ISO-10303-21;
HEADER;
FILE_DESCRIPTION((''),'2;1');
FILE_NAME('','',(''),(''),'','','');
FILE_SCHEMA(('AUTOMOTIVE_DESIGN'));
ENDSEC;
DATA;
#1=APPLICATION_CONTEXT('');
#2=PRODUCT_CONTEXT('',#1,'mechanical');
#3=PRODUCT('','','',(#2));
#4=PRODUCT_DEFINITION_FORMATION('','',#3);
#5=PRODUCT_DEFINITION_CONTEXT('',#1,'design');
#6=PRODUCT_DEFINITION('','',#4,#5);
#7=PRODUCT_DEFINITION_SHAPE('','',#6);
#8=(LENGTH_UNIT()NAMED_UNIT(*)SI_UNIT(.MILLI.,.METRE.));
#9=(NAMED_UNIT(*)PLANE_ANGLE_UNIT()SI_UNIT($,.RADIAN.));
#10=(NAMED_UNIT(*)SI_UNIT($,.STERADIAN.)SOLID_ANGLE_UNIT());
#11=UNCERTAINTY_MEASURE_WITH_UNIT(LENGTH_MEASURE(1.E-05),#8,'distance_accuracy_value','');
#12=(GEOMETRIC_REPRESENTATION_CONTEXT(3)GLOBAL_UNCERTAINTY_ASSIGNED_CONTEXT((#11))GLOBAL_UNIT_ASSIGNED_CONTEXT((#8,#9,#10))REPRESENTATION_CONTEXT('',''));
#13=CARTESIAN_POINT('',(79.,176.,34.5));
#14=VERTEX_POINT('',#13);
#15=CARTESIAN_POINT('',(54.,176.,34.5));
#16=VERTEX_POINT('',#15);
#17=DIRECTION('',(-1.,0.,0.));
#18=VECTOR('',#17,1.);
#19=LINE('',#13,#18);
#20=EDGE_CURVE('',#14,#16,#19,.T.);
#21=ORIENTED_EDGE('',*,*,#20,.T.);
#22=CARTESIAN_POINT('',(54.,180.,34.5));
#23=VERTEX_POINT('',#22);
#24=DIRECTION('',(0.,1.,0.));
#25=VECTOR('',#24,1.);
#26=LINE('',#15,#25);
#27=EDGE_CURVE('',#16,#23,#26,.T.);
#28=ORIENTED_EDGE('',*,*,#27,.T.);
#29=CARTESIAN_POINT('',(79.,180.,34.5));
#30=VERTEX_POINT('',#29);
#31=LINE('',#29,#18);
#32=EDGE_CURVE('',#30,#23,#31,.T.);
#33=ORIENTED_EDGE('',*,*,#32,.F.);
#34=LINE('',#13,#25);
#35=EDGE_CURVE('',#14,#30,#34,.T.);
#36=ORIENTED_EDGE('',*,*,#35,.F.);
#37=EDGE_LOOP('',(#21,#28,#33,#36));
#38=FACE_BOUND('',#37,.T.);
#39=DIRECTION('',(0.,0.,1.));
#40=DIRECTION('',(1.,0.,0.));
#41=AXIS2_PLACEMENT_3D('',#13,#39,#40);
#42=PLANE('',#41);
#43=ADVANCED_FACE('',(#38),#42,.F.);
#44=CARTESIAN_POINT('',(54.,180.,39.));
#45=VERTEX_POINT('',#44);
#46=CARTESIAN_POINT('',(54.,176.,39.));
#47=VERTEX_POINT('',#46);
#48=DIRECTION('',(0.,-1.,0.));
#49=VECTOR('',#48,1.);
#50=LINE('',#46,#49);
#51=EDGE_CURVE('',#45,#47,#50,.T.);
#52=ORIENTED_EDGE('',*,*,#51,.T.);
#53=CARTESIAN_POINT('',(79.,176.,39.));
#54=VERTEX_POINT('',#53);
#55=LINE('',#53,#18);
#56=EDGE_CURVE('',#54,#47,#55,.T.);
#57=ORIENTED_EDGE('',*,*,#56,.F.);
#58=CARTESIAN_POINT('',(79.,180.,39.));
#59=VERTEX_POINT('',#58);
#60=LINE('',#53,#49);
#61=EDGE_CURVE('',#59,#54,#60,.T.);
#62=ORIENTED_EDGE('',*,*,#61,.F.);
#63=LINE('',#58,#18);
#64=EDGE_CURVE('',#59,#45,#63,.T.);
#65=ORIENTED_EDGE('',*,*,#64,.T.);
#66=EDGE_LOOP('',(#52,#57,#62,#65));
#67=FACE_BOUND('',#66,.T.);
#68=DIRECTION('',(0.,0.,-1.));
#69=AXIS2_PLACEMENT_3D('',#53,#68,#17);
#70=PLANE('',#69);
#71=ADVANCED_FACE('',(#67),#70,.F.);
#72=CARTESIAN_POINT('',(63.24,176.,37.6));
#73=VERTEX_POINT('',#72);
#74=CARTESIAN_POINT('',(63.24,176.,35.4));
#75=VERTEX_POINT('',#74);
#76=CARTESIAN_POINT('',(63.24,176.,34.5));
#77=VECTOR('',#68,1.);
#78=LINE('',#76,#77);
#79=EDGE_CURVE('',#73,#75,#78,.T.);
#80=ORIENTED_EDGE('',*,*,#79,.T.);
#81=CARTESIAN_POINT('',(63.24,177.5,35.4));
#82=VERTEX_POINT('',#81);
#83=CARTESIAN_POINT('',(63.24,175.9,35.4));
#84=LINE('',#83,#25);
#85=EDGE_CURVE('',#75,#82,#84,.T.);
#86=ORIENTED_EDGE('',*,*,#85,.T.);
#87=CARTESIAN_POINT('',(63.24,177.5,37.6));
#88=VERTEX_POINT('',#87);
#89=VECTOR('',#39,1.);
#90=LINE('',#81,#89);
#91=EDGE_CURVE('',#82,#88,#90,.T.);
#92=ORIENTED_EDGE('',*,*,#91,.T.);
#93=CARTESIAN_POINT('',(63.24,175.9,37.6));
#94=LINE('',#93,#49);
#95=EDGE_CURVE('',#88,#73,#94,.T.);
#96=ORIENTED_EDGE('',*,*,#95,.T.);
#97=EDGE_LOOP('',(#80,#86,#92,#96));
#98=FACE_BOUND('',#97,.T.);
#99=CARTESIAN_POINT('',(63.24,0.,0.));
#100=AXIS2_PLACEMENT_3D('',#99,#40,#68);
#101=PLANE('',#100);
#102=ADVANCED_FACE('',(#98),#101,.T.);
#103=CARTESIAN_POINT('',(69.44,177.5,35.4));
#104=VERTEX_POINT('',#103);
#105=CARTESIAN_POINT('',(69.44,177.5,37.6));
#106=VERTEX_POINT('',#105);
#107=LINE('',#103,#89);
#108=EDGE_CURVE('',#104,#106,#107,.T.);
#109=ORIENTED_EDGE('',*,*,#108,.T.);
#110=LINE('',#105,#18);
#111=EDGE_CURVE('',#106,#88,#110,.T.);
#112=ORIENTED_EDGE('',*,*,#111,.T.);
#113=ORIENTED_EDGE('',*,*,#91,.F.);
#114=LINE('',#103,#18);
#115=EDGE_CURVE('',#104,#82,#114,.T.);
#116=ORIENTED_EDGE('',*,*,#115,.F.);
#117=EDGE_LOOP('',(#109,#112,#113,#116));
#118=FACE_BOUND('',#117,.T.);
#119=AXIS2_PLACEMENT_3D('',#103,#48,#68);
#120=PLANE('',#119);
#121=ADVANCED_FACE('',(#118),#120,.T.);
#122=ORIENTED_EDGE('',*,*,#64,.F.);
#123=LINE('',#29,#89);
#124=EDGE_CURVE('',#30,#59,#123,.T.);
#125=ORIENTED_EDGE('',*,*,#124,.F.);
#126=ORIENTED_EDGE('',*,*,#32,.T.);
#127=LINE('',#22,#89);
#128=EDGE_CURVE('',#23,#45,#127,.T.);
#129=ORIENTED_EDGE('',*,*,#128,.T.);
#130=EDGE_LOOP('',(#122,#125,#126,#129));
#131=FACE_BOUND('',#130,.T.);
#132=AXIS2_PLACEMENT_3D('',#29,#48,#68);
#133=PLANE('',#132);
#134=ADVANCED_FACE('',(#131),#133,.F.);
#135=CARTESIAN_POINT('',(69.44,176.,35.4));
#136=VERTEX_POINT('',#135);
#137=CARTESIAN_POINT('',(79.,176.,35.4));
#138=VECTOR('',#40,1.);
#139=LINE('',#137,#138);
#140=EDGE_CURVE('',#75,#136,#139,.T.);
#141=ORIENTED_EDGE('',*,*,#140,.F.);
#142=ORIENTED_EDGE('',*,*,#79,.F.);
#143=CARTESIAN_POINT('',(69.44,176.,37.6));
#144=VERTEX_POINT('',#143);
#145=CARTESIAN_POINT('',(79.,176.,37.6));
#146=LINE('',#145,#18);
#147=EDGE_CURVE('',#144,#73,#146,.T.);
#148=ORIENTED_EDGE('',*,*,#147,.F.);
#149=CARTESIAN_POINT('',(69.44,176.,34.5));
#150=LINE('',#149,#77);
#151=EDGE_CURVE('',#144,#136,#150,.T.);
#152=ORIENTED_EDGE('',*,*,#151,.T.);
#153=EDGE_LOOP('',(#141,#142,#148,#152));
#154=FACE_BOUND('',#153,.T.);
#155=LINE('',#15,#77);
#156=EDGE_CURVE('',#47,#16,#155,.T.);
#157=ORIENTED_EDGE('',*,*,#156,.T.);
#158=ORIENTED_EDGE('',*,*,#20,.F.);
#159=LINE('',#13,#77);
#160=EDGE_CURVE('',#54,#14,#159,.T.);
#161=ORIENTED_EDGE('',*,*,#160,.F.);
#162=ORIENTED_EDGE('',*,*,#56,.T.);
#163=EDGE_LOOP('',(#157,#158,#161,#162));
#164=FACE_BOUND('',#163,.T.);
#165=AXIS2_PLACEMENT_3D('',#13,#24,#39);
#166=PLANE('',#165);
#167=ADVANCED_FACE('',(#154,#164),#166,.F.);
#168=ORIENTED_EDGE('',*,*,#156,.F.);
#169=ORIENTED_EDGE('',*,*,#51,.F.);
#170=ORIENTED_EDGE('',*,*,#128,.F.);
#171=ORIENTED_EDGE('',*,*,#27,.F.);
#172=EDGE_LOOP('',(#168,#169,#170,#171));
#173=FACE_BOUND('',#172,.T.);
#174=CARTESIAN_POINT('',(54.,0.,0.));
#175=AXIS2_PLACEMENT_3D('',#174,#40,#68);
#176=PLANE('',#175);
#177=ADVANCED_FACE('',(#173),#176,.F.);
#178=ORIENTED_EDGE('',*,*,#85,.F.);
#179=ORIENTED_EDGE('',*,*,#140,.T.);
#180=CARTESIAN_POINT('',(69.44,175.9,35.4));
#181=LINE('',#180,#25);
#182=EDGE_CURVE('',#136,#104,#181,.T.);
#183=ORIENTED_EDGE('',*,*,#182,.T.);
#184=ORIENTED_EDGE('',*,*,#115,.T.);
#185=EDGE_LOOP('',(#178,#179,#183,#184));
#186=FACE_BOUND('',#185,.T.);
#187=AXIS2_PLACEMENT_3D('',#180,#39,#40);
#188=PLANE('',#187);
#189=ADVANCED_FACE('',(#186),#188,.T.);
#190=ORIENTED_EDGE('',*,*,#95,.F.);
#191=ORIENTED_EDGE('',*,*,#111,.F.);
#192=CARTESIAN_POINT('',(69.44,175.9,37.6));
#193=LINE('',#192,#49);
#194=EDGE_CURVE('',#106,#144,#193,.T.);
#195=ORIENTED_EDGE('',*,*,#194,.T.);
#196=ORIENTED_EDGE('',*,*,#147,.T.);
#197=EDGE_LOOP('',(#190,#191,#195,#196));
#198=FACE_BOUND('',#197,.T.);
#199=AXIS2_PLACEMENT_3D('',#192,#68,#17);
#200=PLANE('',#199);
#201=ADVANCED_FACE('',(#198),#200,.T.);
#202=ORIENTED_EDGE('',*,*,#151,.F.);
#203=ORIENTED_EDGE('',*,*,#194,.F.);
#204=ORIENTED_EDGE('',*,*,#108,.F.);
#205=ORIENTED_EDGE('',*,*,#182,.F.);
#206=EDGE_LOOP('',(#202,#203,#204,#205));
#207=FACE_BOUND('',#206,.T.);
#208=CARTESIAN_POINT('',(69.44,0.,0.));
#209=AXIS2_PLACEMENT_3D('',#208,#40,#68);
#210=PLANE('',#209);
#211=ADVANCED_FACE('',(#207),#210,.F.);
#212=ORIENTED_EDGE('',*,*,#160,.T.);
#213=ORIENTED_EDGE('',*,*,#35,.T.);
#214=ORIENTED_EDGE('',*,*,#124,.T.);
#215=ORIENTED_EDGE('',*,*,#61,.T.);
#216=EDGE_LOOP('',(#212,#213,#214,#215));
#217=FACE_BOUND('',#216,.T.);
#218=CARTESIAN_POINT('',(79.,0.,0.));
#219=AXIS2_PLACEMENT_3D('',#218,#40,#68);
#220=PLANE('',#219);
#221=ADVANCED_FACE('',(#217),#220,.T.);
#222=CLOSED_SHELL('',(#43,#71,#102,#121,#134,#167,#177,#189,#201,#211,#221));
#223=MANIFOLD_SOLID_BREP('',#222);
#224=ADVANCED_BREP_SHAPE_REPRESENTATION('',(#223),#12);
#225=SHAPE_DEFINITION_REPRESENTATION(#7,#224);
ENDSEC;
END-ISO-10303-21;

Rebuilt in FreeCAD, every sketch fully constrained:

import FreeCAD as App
import Part
import Sketcher
Q = App.Units.Quantity

doc = App.newDocument("Part")
body = doc.addObject("PartDesign::Body", "Body")

sketch1 = body.newObject("Sketcher::SketchObject", "Sketch")
sketch1.AttachmentSupport = (doc.getObject("YZ_Plane"), [""])
sketch1.MapMode = "FlatFace"
sketch1.AttachmentOffset = App.Placement(App.Vector(0, 0, 54), App.Rotation())
sketch1.addGeometry([
    Part.LineSegment(App.Vector(180, 39, 0), App.Vector(176, 39, 0)),
    Part.LineSegment(App.Vector(176, 39, 0), App.Vector(176, 34.5, 0)),
    Part.LineSegment(App.Vector(176, 34.5, 0), App.Vector(180, 34.5, 0)),
    Part.LineSegment(App.Vector(180, 34.5, 0), App.Vector(180, 39, 0)),
], False)
sketch1.addConstraint([
    Sketcher.Constraint("Coincident", 0, 2, 1, 1),
    Sketcher.Constraint("Coincident", 1, 2, 2, 1),
    Sketcher.Constraint("Coincident", 2, 2, 3, 1),
    Sketcher.Constraint("Coincident", 3, 2, 0, 1),
    Sketcher.Constraint("Horizontal", 0),
    Sketcher.Constraint("Vertical", 1),
    Sketcher.Constraint("Horizontal", 2),
    Sketcher.Constraint("Vertical", 3),
    Sketcher.Constraint("DistanceX", 0, 2, 0, 1, Q("4 mm")),
    Sketcher.Constraint("DistanceY", 1, 2, 1, 1, Q("4.5 mm")),
    Sketcher.Constraint("DistanceX", -1, 1, 0, 2, Q("176 mm")),
    Sketcher.Constraint("DistanceY", -1, 1, 0, 2, Q("39 mm")),
])
pad1 = body.newObject("PartDesign::Pad", "Pad")
pad1.Profile = sketch1
pad1.Length = 25
body2 = doc.addObject("PartDesign::Body", "Body001")

sketch2 = body2.newObject("Sketcher::SketchObject", "Sketch001")
sketch2.AttachmentSupport = (doc.getObject("YZ_Plane001"), [""])
sketch2.MapMode = "FlatFace"
sketch2.AttachmentOffset = App.Placement(App.Vector(0, 0, 63.24), App.Rotation())
sketch2.addGeometry([
    Part.LineSegment(App.Vector(177.5, 37.6, 0), App.Vector(175.9, 37.6, 0)),
    Part.LineSegment(App.Vector(175.9, 37.6, 0), App.Vector(175.9, 35.4, 0)),
    Part.LineSegment(App.Vector(175.9, 35.4, 0), App.Vector(177.5, 35.4, 0)),
    Part.LineSegment(App.Vector(177.5, 35.4, 0), App.Vector(177.5, 37.6, 0)),
], False)
sketch2.addConstraint([
    Sketcher.Constraint("Coincident", 0, 2, 1, 1),
    Sketcher.Constraint("Coincident", 1, 2, 2, 1),
    Sketcher.Constraint("Coincident", 2, 2, 3, 1),
    Sketcher.Constraint("Coincident", 3, 2, 0, 1),
    Sketcher.Constraint("Horizontal", 0),
    Sketcher.Constraint("Vertical", 1),
    Sketcher.Constraint("Horizontal", 2),
    Sketcher.Constraint("Vertical", 3),
    Sketcher.Constraint("DistanceX", 0, 2, 0, 1, Q("1.6 mm")),
    Sketcher.Constraint("DistanceY", 1, 2, 1, 1, Q("2.2 mm")),
    Sketcher.Constraint("DistanceX", -1, 1, 0, 2, Q("175.9 mm")),
    Sketcher.Constraint("DistanceY", -1, 1, 0, 2, Q("37.6 mm")),
])
pad2 = body2.newObject("PartDesign::Pad", "Pad001")
pad2.Profile = sketch2
pad2.Length = 6.2
doc.recompute()

boolean = body.newObject("PartDesign::Boolean", "Boolean")
boolean.Type = "Cut"
boolean.addObjects([body2])

doc.recompute()
